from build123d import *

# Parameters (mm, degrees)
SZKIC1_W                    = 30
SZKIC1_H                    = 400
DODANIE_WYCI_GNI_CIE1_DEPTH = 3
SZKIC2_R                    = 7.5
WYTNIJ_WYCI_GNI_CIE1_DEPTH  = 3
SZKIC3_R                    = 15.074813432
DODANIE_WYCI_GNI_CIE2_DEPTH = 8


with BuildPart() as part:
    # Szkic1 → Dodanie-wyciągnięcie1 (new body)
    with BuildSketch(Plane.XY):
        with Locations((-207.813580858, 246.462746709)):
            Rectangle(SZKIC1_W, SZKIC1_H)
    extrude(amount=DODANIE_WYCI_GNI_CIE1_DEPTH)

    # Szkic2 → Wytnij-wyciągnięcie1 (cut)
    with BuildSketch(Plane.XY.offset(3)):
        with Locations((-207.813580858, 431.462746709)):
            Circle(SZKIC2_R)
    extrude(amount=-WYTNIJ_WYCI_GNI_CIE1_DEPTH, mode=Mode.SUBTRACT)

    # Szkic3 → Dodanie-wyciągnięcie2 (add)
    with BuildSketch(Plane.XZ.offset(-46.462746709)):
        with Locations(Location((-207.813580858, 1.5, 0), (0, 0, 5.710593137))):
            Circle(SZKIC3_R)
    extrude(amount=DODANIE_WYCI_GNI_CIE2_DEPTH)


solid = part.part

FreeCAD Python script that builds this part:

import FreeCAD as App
import Part
import Sketcher

doc = App.newDocument("Part")
params = doc.addObject("Spreadsheet::Sheet", "Params")
for row, (alias, value) in enumerate([
    ("sketch1_width", "30 mm"),
    ("sketch1_height", "400 mm"),
    ("pad1_length", "3 mm"),
    ("sketch2_diameter", "15 mm"),
    ("pocket1_length", "3 mm"),
    ("pad2_length", "8 mm"),
], start=1):
    params.set(f"A{row}", alias)
    params.set(f"B{row}", "=" + value)
    params.setAlias(f"B{row}", alias)

body = doc.addObject("PartDesign::Body", "Body")

sketch1 = body.newObject("Sketcher::SketchObject", "Sketch")
sketch1.AttachmentSupport = (doc.getObject("XY_Plane"), [""])
sketch1.MapMode = "FlatFace"
sketch1.addGeometry([
    Part.LineSegment(App.Vector(-223, 446, 0), App.Vector(-223, 46, 0)),
    Part.LineSegment(App.Vector(-223, 46, 0), App.Vector(-193, 46, 0)),
    Part.LineSegment(App.Vector(-193, 46, 0), App.Vector(-193, 446, 0)),
    Part.LineSegment(App.Vector(-193, 446, 0), App.Vector(-223, 446, 0)),
], False)
sketch1.addConstraint([
    Sketcher.Constraint("Coincident", 0, 2, 1, 1),
    Sketcher.Constraint("Coincident", 1, 2, 2, 1),
    Sketcher.Constraint("Coincident", 2, 2, 3, 1),
    Sketcher.Constraint("Coincident", 3, 2, 0, 1),
    Sketcher.Constraint("Vertical", 0),
    Sketcher.Constraint("Horizontal", 1),
    Sketcher.Constraint("Vertical", 2),
    Sketcher.Constraint("Horizontal", 3),
    Sketcher.Constraint("DistanceX", 1, 1, 1, 2, 30.0),
    Sketcher.Constraint("DistanceY", 0, 2, 0, 1, 400.0),
    Sketcher.Constraint("DistanceX", 0, 2, -1, 1, 222.813581),
    Sketcher.Constraint("DistanceY", -1, 1, 0, 2, 46.462747),
])
sketch1.setExpression("Constraints[8]", "Params.sketch1_width")
sketch1.setExpression("Constraints[9]", "Params.sketch1_height")
pad1 = body.newObject("PartDesign::Pad", "Pad")
pad1.Profile = sketch1
pad1.setExpression("Length", "Params.pad1_length")

sketch2 = body.newObject("Sketcher::SketchObject", "Sketch001")
sketch2.AttachmentSupport = (doc.getObject("XY_Plane"), [""])
sketch2.MapMode = "FlatFace"
sketch2.AttachmentOffset = App.Placement(App.Vector(0, 0, 3), App.Rotation())
sketch2.addGeometry(Part.Circle(App.Vector(-208, 431, 0), App.Vector(0, 0, 1), 8), False)
sketch2.addConstraint([
    Sketcher.Constraint("Diameter", 0, 15.0),
    Sketcher.Constraint("DistanceX", 0, 3, -1, 1, 207.813581),
    Sketcher.Constraint("DistanceY", -1, 1, 0, 3, 431.462747),
])
sketch2.setExpression("Constraints[0]", "Params.sketch2_diameter")
pocket1 = body.newObject("PartDesign::Pocket", "Pocket")
pocket1.Profile = sketch2
pocket1.setExpression("Length", "Params.pocket1_length")

sketch3 = body.newObject("Sketcher::SketchObject", "Sketch002")
sketch3.AttachmentSupport = (doc.getObject("XZ_Plane"), [""])
sketch3.MapMode = "FlatFace"
sketch3.AttachmentOffset = App.Placement(App.Vector(0, 0, -46.462747), App.Rotation())
sketch3.addGeometry(Part.Circle(App.Vector(-208, 2, 0), App.Vector(0, 0, 1), 15), False)
sketch3.addConstraint([
    Sketcher.Constraint("DistanceY", -1, 1, 0, 3, 1.5),
    Sketcher.Constraint("Diameter", 0, 30.149627),
    Sketcher.Constraint("DistanceX", 0, 3, -1, 1, 207.813581),
])
pad2 = body.newObject("PartDesign::Pad", "Pad001")
pad2.Profile = sketch3
pad2.setExpression("Length", "Params.pad2_length")

doc.recompute()
